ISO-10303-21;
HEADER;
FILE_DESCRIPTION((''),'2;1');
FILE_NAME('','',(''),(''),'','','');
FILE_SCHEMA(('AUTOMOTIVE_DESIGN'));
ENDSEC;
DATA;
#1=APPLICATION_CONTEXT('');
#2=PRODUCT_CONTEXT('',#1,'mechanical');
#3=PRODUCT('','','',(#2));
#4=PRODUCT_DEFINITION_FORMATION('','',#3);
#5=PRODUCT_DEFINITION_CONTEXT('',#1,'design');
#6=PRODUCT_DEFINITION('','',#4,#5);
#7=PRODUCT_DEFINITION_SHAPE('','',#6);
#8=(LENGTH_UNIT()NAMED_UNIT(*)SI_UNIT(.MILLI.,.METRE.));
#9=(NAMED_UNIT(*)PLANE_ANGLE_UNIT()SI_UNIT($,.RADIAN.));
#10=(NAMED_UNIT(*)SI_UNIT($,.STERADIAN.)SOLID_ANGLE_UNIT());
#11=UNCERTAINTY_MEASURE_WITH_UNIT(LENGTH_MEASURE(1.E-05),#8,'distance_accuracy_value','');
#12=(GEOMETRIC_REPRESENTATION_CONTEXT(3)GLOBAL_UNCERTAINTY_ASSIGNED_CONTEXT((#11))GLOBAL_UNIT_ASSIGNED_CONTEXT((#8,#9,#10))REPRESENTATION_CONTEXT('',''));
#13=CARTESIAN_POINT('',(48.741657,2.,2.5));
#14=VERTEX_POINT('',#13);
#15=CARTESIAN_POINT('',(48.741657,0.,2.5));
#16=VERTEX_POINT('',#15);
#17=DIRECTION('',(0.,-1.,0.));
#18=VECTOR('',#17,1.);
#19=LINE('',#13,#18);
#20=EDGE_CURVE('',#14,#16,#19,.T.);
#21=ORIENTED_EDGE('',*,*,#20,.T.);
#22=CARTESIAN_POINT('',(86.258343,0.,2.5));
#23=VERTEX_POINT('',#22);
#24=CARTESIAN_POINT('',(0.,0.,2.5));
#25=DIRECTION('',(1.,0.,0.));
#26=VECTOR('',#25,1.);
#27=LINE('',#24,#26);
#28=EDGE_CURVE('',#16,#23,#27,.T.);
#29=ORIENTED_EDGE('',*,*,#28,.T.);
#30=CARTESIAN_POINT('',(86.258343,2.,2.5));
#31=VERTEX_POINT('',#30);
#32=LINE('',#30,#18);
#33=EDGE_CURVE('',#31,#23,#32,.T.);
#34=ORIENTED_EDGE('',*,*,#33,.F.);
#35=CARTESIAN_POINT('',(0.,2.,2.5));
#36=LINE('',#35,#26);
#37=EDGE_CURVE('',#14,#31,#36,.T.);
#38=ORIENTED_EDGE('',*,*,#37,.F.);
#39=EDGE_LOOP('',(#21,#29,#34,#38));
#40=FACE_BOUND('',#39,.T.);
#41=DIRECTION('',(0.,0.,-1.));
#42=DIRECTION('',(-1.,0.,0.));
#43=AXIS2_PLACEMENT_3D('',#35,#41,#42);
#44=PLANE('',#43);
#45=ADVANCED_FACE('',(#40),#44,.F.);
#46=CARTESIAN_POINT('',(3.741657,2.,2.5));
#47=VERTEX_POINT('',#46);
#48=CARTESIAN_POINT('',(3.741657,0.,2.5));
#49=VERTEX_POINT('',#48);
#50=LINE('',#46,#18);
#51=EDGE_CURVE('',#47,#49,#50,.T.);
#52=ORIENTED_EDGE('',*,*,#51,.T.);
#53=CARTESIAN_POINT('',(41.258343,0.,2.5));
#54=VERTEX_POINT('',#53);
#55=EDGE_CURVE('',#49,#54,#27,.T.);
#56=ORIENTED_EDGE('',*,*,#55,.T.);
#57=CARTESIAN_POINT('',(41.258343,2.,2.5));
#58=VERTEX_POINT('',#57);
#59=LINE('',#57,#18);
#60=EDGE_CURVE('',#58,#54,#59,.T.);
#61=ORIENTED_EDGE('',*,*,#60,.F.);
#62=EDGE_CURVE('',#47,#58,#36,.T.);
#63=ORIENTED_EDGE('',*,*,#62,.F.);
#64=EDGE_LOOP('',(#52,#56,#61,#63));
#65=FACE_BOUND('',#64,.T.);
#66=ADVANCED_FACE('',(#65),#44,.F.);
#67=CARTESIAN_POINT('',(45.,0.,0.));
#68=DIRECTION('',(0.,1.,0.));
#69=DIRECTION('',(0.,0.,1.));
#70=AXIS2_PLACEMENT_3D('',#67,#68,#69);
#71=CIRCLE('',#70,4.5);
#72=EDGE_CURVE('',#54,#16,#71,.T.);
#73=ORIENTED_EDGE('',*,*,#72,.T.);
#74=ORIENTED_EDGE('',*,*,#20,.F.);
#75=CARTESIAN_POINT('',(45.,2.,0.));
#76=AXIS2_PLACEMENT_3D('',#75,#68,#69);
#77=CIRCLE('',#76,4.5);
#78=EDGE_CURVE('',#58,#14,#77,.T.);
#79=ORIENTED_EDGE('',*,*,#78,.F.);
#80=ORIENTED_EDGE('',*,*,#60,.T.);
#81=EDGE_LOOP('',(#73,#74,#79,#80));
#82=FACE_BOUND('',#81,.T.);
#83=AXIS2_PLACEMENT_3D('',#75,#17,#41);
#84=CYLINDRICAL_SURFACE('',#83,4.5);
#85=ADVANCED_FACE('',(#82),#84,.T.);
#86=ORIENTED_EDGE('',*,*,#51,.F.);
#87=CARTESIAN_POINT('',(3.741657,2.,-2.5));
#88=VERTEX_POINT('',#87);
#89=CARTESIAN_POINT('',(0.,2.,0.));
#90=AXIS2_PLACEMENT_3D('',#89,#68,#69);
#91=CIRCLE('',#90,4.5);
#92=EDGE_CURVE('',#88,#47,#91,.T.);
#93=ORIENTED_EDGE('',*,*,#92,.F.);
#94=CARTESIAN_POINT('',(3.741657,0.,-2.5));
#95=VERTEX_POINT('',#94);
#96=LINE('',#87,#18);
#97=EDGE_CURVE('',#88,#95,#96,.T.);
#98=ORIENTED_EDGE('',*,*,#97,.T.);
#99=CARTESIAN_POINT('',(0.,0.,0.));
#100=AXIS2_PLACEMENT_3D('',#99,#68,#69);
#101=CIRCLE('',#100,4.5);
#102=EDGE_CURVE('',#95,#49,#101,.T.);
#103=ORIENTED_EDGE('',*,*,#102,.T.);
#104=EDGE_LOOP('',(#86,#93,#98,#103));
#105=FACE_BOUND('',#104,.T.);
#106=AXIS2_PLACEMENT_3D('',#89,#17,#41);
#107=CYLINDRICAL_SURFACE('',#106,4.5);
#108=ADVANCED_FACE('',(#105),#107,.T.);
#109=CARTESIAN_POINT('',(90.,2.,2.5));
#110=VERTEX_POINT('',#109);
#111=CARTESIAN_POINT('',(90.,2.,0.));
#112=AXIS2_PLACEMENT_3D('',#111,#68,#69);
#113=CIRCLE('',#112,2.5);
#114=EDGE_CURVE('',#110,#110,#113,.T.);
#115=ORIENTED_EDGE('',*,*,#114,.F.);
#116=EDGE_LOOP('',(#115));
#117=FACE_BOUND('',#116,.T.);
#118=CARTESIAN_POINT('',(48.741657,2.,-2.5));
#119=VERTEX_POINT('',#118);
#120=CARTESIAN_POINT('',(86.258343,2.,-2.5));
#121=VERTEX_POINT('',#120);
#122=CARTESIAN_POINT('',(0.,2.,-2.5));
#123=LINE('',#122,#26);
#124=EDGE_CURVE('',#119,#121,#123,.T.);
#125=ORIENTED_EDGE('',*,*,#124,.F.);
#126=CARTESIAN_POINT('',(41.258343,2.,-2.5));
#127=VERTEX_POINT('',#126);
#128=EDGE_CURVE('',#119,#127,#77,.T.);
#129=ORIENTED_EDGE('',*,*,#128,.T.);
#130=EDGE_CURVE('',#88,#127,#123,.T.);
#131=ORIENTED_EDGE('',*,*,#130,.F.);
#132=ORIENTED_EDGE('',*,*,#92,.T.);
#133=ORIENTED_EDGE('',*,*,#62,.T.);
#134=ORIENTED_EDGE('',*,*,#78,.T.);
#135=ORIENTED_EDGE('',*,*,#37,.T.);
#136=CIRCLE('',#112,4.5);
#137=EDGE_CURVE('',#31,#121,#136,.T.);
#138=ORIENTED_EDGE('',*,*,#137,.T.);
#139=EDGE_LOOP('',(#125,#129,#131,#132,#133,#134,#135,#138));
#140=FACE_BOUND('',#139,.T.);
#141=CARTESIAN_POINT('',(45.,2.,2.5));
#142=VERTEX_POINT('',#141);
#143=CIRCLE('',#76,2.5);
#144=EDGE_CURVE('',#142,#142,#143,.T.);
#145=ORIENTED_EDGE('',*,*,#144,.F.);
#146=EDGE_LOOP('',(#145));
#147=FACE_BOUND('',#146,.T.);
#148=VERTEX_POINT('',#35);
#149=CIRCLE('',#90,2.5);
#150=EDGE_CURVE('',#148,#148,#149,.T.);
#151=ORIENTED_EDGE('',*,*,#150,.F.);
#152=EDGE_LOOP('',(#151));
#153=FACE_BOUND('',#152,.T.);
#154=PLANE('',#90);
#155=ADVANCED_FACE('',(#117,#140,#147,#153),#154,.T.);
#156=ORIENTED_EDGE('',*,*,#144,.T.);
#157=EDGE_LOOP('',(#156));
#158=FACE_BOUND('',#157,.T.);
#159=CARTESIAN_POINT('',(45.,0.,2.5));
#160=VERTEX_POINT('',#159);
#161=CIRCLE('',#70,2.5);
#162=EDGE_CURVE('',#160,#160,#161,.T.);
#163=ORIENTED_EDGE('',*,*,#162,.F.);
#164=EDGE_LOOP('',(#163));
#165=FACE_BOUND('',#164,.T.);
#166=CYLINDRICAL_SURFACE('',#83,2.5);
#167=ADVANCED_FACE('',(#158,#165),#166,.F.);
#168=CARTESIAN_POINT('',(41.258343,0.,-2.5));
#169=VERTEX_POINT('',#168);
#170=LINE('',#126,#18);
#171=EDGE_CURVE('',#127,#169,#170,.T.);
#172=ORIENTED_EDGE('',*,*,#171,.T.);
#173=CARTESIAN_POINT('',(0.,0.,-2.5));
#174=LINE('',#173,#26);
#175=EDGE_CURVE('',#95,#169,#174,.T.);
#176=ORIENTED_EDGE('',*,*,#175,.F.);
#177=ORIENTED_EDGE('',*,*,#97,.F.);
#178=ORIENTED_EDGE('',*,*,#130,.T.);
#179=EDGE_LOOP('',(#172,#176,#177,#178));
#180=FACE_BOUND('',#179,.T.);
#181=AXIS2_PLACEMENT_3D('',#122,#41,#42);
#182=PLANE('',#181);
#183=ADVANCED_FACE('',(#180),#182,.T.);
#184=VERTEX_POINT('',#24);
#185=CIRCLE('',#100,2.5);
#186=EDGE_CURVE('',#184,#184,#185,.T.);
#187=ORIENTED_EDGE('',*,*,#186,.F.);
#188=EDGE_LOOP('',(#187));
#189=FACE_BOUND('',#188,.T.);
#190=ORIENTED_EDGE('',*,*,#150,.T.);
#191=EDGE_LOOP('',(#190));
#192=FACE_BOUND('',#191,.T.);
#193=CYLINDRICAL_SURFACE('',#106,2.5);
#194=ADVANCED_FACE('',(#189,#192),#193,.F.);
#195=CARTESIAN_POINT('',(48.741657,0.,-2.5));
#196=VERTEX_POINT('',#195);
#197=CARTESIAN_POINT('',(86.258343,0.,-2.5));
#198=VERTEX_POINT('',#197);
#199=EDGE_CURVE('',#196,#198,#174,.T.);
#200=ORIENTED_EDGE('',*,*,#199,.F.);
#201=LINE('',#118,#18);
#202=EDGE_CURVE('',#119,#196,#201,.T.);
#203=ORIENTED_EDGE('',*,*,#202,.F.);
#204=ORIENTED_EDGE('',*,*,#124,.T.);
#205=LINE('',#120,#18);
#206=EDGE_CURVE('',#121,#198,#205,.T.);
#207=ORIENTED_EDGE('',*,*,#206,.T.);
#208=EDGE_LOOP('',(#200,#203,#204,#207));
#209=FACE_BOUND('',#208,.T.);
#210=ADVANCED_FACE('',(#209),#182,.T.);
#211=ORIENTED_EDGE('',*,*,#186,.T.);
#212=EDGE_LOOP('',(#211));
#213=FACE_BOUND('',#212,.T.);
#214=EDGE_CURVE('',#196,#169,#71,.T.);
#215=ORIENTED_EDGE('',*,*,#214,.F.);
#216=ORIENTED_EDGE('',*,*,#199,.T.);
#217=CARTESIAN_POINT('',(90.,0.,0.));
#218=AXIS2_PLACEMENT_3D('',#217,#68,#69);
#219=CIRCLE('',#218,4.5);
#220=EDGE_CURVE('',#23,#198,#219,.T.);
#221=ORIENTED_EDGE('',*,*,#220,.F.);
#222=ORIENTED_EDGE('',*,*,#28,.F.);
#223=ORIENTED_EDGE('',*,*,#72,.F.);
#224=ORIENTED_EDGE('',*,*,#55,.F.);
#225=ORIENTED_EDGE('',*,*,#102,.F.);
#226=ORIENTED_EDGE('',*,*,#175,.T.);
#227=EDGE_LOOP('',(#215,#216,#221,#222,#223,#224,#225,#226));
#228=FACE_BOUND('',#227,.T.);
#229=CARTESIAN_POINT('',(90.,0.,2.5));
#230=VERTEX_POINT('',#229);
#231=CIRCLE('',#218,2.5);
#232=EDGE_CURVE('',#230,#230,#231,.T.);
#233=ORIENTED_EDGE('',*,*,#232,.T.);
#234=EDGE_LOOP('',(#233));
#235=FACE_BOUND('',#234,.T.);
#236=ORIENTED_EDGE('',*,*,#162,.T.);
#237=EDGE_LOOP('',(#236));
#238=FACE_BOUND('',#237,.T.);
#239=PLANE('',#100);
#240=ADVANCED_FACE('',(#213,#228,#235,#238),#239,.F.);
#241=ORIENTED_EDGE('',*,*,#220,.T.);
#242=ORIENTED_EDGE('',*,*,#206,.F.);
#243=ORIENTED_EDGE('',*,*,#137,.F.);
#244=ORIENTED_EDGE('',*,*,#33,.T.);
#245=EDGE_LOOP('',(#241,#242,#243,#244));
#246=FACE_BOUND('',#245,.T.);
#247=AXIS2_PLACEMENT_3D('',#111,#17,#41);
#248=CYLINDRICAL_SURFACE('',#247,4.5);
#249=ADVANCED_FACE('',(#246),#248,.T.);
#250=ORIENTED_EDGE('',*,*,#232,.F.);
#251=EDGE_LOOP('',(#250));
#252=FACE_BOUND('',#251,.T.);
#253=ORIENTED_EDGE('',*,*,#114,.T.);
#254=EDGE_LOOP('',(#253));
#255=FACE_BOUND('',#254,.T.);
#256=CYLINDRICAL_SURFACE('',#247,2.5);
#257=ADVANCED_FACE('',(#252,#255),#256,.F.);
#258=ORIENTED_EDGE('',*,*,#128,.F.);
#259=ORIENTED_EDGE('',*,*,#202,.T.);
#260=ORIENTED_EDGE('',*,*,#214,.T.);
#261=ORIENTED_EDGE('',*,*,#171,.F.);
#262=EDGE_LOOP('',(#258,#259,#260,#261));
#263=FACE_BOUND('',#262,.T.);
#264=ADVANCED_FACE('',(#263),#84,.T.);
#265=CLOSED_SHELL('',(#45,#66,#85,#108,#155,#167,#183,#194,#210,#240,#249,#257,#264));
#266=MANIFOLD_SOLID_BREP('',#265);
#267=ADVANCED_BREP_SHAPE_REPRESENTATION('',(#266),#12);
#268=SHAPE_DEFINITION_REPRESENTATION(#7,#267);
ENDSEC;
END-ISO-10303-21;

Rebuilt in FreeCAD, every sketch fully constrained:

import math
import FreeCAD as App
import Part
import Sketcher
Q = App.Units.Quantity

doc = App.newDocument("Part")
body = doc.addObject("PartDesign::Body", "Body")

# Sketch on XZ plane
sketch1 = body.newObject("Sketcher::SketchObject", "Sketch")
sketch1.AttachmentSupport = (doc.getObject("XZ_Plane"), [""])
sketch1.MapMode = "FlatFace"
sketch1.addGeometry(Part.LineSegment(App.Vector(3.7, 2.5, 0), App.Vector(41.3, 2.5, 0)), False)
sketch1.addGeometry(Part.ArcOfCircle(Part.Circle(App.Vector(45, 0, 0), App.Vector(0, 0, 1), 4.5), math.radians(34), math.radians(146)), False)
sketch1.addGeometry(Part.LineSegment(App.Vector(48.7, 2.5, 0), App.Vector(86.3, 2.5, 0)), False)
sketch1.addGeometry(Part.ArcOfCircle(Part.Circle(App.Vector(90, 0, 0), App.Vector(0, 0, 1), 4.5), math.radians(-146), math.radians(146)), False)
sketch1.addGeometry(Part.LineSegment(App.Vector(86.3, -2.5, 0), App.Vector(48.7, -2.5, 0)), False)
sketch1.addGeometry(Part.ArcOfCircle(Part.Circle(App.Vector(45, 0, 0), App.Vector(0, 0, 1), 4.5), math.radians(-146), math.radians(-34)), False)
sketch1.addGeometry(Part.LineSegment(App.Vector(41.3, -2.5, 0), App.Vector(3.7, -2.5, 0)), False)
sketch1.addGeometry(Part.ArcOfCircle(Part.Circle(App.Vector(0, 0, 0), App.Vector(0, 0, 1), 4.5), math.radians(34), math.radians(326)), False)
sketch1.addGeometry(Part.Circle(App.Vector(0, 0, 0), App.Vector(0, 0, 1), 2.5), False)
sketch1.addGeometry(Part.Circle(App.Vector(45, 0, 0), App.Vector(0, 0, 1), 2.5), False)
sketch1.addGeometry(Part.Circle(App.Vector(90, 0, 0), App.Vector(0, 0, 1), 2.5), False)
sketch1.addConstraint(Sketcher.Constraint("Coincident", 0, 2, 1, 2))
sketch1.addConstraint(Sketcher.Constraint("Coincident", 1, 1, 2, 1))
sketch1.addConstraint(Sketcher.Constraint("Coincident", 2, 2, 3, 2))
sketch1.addConstraint(Sketcher.Constraint("Coincident", 3, 1, 4, 1))
sketch1.addConstraint(Sketcher.Constraint("Coincident", 4, 2, 5, 2))
sketch1.addConstraint(Sketcher.Constraint("Coincident", 5, 1, 6, 1))
sketch1.addConstraint(Sketcher.Constraint("Coincident", 6, 2, 7, 2))
sketch1.addConstraint(Sketcher.Constraint("Coincident", 7, 1, 0, 1))
sketch1.addConstraint(Sketcher.Constraint("Horizontal", 0))
sketch1.addConstraint(Sketcher.Constraint("Horizontal", 2))
sketch1.addConstraint(Sketcher.Constraint("Horizontal", 4))
sketch1.addConstraint(Sketcher.Constraint("Horizontal", 6))
sketch1.addConstraint(Sketcher.Constraint("Coincident", 7, 3, -1, 1))
sketch1.addConstraint(Sketcher.Constraint("Coincident", 8, 3, -1, 1))
sketch1.addConstraint(Sketcher.Constraint("Coincident", 5, 3, 1, 3))
sketch1.addConstraint(Sketcher.Constraint("Coincident", 9, 3, 1, 3))
sketch1.addConstraint(Sketcher.Constraint("Coincident", 10, 3, 3, 3))
sketch1.addConstraint(Sketcher.Constraint("Equal", 1, 3))
sketch1.addConstraint(Sketcher.Constraint("Equal", 3, 5))
sketch1.addConstraint(Sketcher.Constraint("Equal", 5, 7))
sketch1.addConstraint(Sketcher.Constraint("Equal", 8, 9))
sketch1.addConstraint(Sketcher.Constraint("Equal", 9, 10))
sketch1.addConstraint(Sketcher.Constraint("Symmetric", 2, 2, 3, 1, -1))
sketch1.addConstraint(Sketcher.Constraint("Symmetric", 0, 2, 5, 1, -1))
sketch1.addConstraint(Sketcher.Constraint("Horizontal", 0, 2, 1, 1))
sketch1.addConstraint(Sketcher.Constraint("Equal", 0, 2))
sketch1.addConstraint(Sketcher.Constraint("Diameter", 8, Q("5 mm")))
sketch1.addConstraint(Sketcher.Constraint("Radius", 1, Q("4.5 mm")))
sketch1.addConstraint(Sketcher.Constraint("DistanceX", -1, 1, 1, 3, Q("45 mm")))
sketch1.addConstraint(Sketcher.Constraint("DistanceY", 3, 1, 2, 2, Q("5 mm")))
pad1 = body.newObject("PartDesign::Pad", "Pad")
pad1.Profile = sketch1
pad1.Length = 2
pad1.Reversed = True

doc.recompute()
